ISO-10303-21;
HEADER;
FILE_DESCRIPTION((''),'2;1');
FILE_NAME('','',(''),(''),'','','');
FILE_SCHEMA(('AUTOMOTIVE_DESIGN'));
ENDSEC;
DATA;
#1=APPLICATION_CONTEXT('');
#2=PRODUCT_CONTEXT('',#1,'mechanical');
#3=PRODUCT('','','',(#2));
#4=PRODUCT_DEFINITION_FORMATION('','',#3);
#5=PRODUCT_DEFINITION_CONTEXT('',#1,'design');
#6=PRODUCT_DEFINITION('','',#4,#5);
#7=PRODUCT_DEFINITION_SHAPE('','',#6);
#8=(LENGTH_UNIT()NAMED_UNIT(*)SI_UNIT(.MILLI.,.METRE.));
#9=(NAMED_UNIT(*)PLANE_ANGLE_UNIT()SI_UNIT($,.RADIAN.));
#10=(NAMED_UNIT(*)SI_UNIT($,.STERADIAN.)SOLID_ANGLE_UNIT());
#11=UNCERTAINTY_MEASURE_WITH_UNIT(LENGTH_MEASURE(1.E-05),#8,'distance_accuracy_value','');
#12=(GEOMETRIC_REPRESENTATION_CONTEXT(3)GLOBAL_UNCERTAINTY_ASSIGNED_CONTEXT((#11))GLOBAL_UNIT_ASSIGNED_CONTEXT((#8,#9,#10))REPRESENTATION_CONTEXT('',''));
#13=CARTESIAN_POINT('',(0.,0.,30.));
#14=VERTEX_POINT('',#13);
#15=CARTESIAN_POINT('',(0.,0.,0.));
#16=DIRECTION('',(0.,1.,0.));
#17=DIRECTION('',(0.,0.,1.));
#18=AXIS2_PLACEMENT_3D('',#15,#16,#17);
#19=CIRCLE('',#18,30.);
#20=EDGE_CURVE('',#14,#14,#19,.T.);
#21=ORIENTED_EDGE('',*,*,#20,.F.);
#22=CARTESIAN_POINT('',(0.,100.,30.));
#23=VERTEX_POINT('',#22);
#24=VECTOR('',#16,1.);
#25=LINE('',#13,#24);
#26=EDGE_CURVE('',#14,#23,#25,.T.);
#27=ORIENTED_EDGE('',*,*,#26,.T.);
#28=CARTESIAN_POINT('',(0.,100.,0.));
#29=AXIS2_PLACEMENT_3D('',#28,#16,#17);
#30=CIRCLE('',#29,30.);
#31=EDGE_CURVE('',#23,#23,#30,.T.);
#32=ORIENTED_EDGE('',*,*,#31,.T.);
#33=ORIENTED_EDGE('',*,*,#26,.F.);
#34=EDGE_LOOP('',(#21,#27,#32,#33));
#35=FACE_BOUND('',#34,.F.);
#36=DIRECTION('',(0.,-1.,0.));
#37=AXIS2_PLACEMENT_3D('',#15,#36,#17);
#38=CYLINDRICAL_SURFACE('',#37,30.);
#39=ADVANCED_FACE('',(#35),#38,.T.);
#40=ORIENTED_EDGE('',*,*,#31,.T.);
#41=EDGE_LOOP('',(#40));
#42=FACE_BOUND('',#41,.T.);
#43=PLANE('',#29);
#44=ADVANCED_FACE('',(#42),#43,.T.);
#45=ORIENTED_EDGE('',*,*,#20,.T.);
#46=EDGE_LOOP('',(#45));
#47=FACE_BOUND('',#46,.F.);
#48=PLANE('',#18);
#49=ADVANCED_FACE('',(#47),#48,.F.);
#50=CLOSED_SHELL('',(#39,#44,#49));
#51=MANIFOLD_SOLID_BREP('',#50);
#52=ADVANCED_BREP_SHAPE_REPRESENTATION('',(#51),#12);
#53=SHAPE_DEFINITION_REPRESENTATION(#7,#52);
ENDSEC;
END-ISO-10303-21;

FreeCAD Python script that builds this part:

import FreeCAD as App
import Part
import Sketcher
Q = App.Units.Quantity

doc = App.newDocument("Part")
body = doc.addObject("PartDesign::Body", "Body")

# Sketch on XZ plane
sketch1 = doc.addObject("Sketcher::SketchObject", "Sketch")
body.addObject(sketch1)
sketch1.AttachmentSupport = (doc.XZ_Plane, [""])
sketch1.MapMode = "FlatFace"
sketch1.addGeometry(Part.Circle(App.Vector(0, 0, 0), App.Vector(0, 0, 1), 30), False)
sketch1.addConstraint([
    Sketcher.Constraint("Coincident", 0, 3, -1, 1),
    Sketcher.Constraint("Diameter", 0, Q("60 mm")),
])
pad1 = doc.addObject("PartDesign::Pad", "Pad")
body.addObject(pad1)
pad1.Profile = sketch1
pad1.Length = 100
pad1.Reversed = True

doc.recompute()
